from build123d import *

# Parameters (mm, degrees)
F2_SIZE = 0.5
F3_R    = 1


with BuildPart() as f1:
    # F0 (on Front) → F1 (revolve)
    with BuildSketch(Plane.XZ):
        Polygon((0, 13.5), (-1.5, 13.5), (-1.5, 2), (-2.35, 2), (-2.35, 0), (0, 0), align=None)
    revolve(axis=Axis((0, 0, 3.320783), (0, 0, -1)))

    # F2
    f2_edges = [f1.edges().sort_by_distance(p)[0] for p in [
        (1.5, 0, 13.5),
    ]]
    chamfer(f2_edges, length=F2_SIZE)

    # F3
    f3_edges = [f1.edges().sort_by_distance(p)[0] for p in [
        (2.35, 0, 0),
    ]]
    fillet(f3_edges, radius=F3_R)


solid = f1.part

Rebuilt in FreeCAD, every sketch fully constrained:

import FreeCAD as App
import Part
import Sketcher


def edges_at(feature, points):
    """Names of the edges that pass closest to the given points."""
    edges = feature.Shape.Edges
    near = lambda p: min(range(len(edges)), key=lambda i: edges[i].distToShape(Part.Vertex(*p))[0])
    return sorted({f"Edge{near(p) + 1}" for p in points})

doc = App.newDocument("Part")
body = doc.addObject("PartDesign::Body", "Body")

# Sketch on XZ plane
sketch1 = doc.addObject("Sketcher::SketchObject", "Sketch")
body.addObject(sketch1)
sketch1.AttachmentSupport = (doc.XZ_Plane, [""])
sketch1.MapMode = "FlatFace"
sketch1.addGeometry(Part.LineSegment(App.Vector(0, 13.5, 0), App.Vector(-1.5, 13.5, 0)), False)
sketch1.addGeometry(Part.LineSegment(App.Vector(-1.5, 13.5, 0), App.Vector(-1.5, 2, 0)), False)
sketch1.addGeometry(Part.LineSegment(App.Vector(-1.5, 2, 0), App.Vector(-2.4, 2, 0)), False)
sketch1.addGeometry(Part.LineSegment(App.Vector(-2.4, 2, 0), App.Vector(-2.4, 0, 0)), False)
sketch1.addGeometry(Part.LineSegment(App.Vector(-2.4, 0, 0), App.Vector(0, 0, 0)), False)
sketch1.addGeometry(Part.LineSegment(App.Vector(0, 0, 0), App.Vector(0, 13.5, 0)), False)
sketch1.addConstraint(Sketcher.Constraint("Coincident", 0, 2, 1, 1))
sketch1.addConstraint(Sketcher.Constraint("Coincident", 1, 2, 2, 1))
sketch1.addConstraint(Sketcher.Constraint("Coincident", 2, 2, 3, 1))
sketch1.addConstraint(Sketcher.Constraint("Coincident", 3, 2, 4, 1))
sketch1.addConstraint(Sketcher.Constraint("Coincident", 4, 2, 5, 1))
sketch1.addConstraint(Sketcher.Constraint("Coincident", 5, 2, 0, 1))
sketch1.addConstraint(Sketcher.Constraint("Horizontal", 0))
sketch1.addConstraint(Sketcher.Constraint("Vertical", 1))
sketch1.addConstraint(Sketcher.Constraint("Horizontal", 2))
sketch1.addConstraint(Sketcher.Constraint("Vertical", 3))
sketch1.addConstraint(Sketcher.Constraint("Horizontal", 4))
sketch1.addConstraint(Sketcher.Constraint("Vertical", 5))
sketch1.addConstraint(Sketcher.Constraint("Coincident", 4, 2, -1, 1))
sketch1.addConstraint(Sketcher.Constraint("DistanceY", 3, 2, 3, 1, 2.0))
sketch1.addConstraint(Sketcher.Constraint("DistanceX", 0, 2, 0, 1, 1.5))
sketch1.addConstraint(Sketcher.Constraint("DistanceY", 1, 2, 1, 1, 11.5))
sketch1.addConstraint(Sketcher.Constraint("DistanceX", 2, 2, 2, 1, 0.85))
revolution = doc.addObject("PartDesign::Revolution", "Revolution")
body.addObject(revolution)
revolution.Profile = sketch1
revolution.ReferenceAxis = (sketch1, ["V_Axis"])
revolution.Angle = 360
doc.recompute()

chamfer = doc.addObject("PartDesign::Chamfer", "Chamfer")
body.addObject(chamfer)
chamfer.Base = (revolution, edges_at(revolution, [(1.5, 0, 13.5)]))
chamfer.Size = 0.5
doc.recompute()

fillet = doc.addObject("PartDesign::Fillet", "Fillet")
body.addObject(fillet)
fillet.Base = (chamfer, edges_at(chamfer, [(2.35, 0, 0)]))
fillet.Radius = 1

doc.recompute()
